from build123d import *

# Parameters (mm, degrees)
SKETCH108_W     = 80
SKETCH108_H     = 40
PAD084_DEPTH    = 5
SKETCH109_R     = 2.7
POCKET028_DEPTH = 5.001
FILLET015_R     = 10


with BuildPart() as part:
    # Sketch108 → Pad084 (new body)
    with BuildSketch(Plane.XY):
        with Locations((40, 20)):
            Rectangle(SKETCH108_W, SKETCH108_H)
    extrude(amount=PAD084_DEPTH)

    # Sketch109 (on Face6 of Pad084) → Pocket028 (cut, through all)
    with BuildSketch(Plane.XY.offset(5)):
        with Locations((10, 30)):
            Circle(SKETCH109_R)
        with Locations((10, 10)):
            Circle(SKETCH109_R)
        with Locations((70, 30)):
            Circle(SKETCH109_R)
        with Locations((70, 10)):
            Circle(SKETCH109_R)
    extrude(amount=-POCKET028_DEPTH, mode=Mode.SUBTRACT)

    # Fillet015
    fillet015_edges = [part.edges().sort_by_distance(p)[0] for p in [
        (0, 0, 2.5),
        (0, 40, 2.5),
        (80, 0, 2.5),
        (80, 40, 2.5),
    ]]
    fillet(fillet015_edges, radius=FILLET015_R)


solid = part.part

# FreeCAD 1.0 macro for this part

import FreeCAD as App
import Part
import Sketcher

V = App.Vector


def edges_at(feature, points):
    """Names of the edges that pass closest to the given points."""
    edges = feature.Shape.Edges
    near = lambda p: min(range(len(edges)), key=lambda i: edges[i].distToShape(Part.Vertex(*p))[0])
    return sorted({f"Edge{near(p) + 1}" for p in points})


def add_polygon(sketch, points):
    """Adds a closed chain of lines whose ends are joined by coincident constraints."""
    first, n = sketch.GeometryCount, len(points)
    for a, b in zip(points, points[1:] + points[:1]):
        sketch.addGeometry(Part.LineSegment(App.Vector(*a, 0), App.Vector(*b, 0)), False)
    for i in range(n):
        sketch.addConstraint(Sketcher.Constraint("Coincident", first + i, 2, first + (i + 1) % n, 1))

doc = App.newDocument("Part")
body = doc.addObject("PartDesign::Body", "Body")

sketch1 = body.newObject("Sketcher::SketchObject", "Sketch")
sketch1.AttachmentSupport = (doc.getObject("XY_Plane"), [""])
sketch1.MapMode = "FlatFace"
add_polygon(sketch1, [(0, 40), (0, 0), (80, 0), (80, 40)])
sketch1.addConstraint([
    Sketcher.Constraint("Vertical", 0),
    Sketcher.Constraint("Horizontal", 1),
    Sketcher.Constraint("Vertical", 2),
    Sketcher.Constraint("Horizontal", 3),
    Sketcher.Constraint("Coincident", 0, 2, -1, 1),
    Sketcher.Constraint("DistanceX", 1, 1, 1, 2, 80.0),
    Sketcher.Constraint("DistanceY", 0, 2, 0, 1, 40.0),
])
pad1 = body.newObject("PartDesign::Pad", "Pad")
pad1.Profile = sketch1
pad1.Length = 5

sketch2 = body.newObject("Sketcher::SketchObject", "Sketch001")
sketch2.AttachmentSupport = (doc.getObject("XY_Plane"), [""])
sketch2.MapMode = "FlatFace"
sketch2.AttachmentOffset = App.Placement(V(0, 0, 5), App.Rotation())
sketch2.addGeometry([
    Part.Circle(V(10, 30, 0), V(0, 0, 1), 2.7),
    Part.Circle(V(10, 10, 0), V(0, 0, 1), 2.7),
    Part.Circle(V(70, 30, 0), V(0, 0, 1), 2.7),
    Part.Circle(V(70, 10, 0), V(0, 0, 1), 2.7),
], False)
sketch2.addConstraint([
    Sketcher.Constraint("Equal", 0, 1),
    Sketcher.Constraint("Equal", 1, 2),
    Sketcher.Constraint("Equal", 2, 3),
    Sketcher.Constraint("Horizontal", 0, 3, 2, 3),
    Sketcher.Constraint("Horizontal", 1, 3, 3, 3),
    Sketcher.Constraint("Vertical", 0, 3, 1, 3),
    Sketcher.Constraint("Vertical", 2, 3, 3, 3),
    Sketcher.Constraint("Diameter", 0, 5.4),
    Sketcher.Constraint("DistanceX", -1, 1, 0, 3, 10.0),
    Sketcher.Constraint("DistanceY", -1, 1, 0, 3, 30.0),
    Sketcher.Constraint("DistanceY", -1, 1, 1, 3, 10.0),
    Sketcher.Constraint("DistanceX", -1, 1, 2, 3, 70.0),
])
pocket1 = body.newObject("PartDesign::Pocket", "Pocket")
pocket1.Profile = sketch2
pocket1.Type = "ThroughAll"
doc.recompute()

fillet = body.newObject("PartDesign::Fillet", "Fillet")
fillet.Base = (pocket1, edges_at(pocket1, [
    (0, 0, 2.5),
    (0, 40, 2.5),
    (80, 0, 2.5),
    (80, 40, 2.5),
]))
fillet.Radius = 10

doc.recompute()
